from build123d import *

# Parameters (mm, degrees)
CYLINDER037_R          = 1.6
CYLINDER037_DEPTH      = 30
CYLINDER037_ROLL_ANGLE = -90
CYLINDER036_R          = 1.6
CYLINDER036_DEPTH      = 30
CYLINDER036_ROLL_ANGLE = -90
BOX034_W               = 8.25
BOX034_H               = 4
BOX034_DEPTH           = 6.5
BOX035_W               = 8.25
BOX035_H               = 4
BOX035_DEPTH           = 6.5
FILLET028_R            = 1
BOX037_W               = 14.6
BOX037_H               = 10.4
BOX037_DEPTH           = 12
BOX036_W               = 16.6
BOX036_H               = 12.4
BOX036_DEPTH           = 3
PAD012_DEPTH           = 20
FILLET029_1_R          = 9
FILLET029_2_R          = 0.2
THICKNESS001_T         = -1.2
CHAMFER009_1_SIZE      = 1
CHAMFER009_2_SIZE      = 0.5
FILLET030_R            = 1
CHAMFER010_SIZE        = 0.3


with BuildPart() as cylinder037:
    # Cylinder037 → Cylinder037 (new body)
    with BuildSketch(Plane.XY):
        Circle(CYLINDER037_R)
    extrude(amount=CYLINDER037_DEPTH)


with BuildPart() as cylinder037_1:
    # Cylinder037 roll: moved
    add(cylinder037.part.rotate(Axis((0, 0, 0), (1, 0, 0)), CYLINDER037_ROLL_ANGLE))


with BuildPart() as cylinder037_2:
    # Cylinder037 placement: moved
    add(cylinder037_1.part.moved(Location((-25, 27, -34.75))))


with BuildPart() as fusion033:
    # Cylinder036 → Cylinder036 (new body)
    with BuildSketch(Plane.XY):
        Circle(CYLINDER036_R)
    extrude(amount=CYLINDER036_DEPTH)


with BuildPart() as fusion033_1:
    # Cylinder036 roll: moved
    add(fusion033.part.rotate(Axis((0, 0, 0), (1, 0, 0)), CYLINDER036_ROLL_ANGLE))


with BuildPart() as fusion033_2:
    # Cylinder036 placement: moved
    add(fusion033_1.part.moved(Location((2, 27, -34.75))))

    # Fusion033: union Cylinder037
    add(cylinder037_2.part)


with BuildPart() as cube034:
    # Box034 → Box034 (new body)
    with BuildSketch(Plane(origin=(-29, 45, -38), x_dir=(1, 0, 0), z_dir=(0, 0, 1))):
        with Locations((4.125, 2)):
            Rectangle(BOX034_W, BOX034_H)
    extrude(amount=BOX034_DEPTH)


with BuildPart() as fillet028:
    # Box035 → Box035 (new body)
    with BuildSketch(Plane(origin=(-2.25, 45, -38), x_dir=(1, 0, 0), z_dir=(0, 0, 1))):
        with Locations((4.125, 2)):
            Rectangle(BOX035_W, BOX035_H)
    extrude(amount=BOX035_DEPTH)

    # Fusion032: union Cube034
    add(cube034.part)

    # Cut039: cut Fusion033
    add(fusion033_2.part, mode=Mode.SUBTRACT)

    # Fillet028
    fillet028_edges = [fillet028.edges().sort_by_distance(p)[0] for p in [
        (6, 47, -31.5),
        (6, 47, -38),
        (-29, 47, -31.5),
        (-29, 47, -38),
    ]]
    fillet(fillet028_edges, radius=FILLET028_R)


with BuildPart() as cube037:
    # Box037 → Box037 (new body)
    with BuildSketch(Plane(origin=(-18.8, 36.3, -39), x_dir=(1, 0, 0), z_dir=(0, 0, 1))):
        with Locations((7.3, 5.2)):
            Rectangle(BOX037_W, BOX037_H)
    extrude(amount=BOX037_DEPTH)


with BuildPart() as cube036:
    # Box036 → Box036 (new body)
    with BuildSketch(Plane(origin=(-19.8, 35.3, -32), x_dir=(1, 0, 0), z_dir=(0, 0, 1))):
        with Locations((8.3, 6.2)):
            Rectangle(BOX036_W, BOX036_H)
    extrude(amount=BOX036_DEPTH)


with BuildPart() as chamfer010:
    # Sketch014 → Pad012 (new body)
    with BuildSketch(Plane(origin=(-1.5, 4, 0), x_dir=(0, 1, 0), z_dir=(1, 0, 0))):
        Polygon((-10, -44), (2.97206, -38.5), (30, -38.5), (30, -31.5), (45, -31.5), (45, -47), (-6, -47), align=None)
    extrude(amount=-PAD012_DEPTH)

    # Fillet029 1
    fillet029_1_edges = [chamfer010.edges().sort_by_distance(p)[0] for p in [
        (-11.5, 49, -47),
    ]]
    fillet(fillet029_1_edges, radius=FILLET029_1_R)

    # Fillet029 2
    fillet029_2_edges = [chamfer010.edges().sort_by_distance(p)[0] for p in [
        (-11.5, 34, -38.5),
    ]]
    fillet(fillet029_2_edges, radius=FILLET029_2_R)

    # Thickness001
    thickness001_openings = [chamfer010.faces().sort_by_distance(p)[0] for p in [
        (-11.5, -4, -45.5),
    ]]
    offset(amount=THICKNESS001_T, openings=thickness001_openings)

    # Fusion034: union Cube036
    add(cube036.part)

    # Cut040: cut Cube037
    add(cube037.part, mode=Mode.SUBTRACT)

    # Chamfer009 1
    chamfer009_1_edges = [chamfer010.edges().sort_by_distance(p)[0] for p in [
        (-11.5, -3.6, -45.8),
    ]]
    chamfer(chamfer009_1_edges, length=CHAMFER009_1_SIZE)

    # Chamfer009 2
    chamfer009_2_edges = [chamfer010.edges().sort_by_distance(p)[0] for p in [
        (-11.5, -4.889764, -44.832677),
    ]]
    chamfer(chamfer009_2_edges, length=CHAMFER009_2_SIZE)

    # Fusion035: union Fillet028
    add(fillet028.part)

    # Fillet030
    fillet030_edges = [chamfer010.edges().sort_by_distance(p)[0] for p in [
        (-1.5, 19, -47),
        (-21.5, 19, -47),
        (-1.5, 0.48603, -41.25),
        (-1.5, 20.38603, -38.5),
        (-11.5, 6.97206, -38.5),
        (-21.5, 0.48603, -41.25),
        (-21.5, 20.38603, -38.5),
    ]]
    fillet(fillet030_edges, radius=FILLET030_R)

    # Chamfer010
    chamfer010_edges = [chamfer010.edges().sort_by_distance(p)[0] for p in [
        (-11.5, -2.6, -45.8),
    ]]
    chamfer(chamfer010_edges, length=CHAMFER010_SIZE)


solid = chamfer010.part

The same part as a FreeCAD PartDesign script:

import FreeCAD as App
import Part
import Sketcher


def edges_at(feature, points):
    """Names of the edges that pass closest to the given points."""
    edges = feature.Shape.Edges
    near = lambda p: min(range(len(edges)), key=lambda i: edges[i].distToShape(Part.Vertex(*p))[0])
    return sorted({f"Edge{near(p) + 1}" for p in points})


def faces_at(feature, points):
    """Names of the faces that lie closest to the given points."""
    faces = feature.Shape.Faces
    near = lambda p: min(range(len(faces)), key=lambda i: faces[i].distToShape(Part.Vertex(*p))[0])
    return sorted({f"Face{near(p) + 1}" for p in points})

doc = App.newDocument("Part")
body = doc.addObject("PartDesign::Body", "Body")

# Sketch on XY plane
sketch1 = body.newObject("Sketcher::SketchObject", "Sketch")
sketch1.AttachmentSupport = (doc.getObject("XY_Plane"), [""])
sketch1.MapMode = "FlatFace"
sketch1.addGeometry(Part.Circle(App.Vector(0, 0, 0), App.Vector(0, 0, 1), 1.6), False)
sketch1.addConstraint(Sketcher.Constraint("Coincident", 0, 3, -1, 1))
sketch1.addConstraint(Sketcher.Constraint("Diameter", 0, 3.2))
pad1 = body.newObject("PartDesign::Pad", "Pad")
pad1.Profile = sketch1
pad1.Length = 30
body2 = doc.addObject("PartDesign::Body", "Body001")
doc.recompute()

body.Placement = App.Placement(App.Vector(0, 0, 0), App.Rotation(App.Vector(1, 0, 0), 270))
boolean = body2.newObject("PartDesign::Boolean", "Boolean")
boolean.Type = "Fuse"
boolean.addObjects([body])
body3 = doc.addObject("PartDesign::Body", "Body002")
doc.recompute()

body2.Placement = App.Placement(App.Vector(-25, 27, -34.75), App.Rotation(App.Vector(0, 0, 1), 0))
boolean2 = body3.newObject("PartDesign::Boolean", "Boolean001")
boolean2.Type = "Fuse"
boolean2.addObjects([body2])
body4 = doc.addObject("PartDesign::Body", "Body003")

# Sketch on XY plane
sketch2 = body4.newObject("Sketcher::SketchObject", "Sketch001")
sketch2.AttachmentSupport = (doc.getObject("XY_Plane003"), [""])
sketch2.MapMode = "FlatFace"
sketch2.addGeometry(Part.Circle(App.Vector(0, 0, 0), App.Vector(0, 0, 1), 1.6), False)
sketch2.addConstraint(Sketcher.Constraint("Coincident", 0, 3, -1, 1))
sketch2.addConstraint(Sketcher.Constraint("Diameter", 0, 3.2))
pad2 = body4.newObject("PartDesign::Pad", "Pad001")
pad2.Profile = sketch2
pad2.Length = 30
body5 = doc.addObject("PartDesign::Body", "Body004")
doc.recompute()

body4.Placement = App.Placement(App.Vector(0, 0, 0), App.Rotation(App.Vector(1, 0, 0), 270))
boolean3 = body5.newObject("PartDesign::Boolean", "Boolean002")
boolean3.Type = "Fuse"
boolean3.addObjects([body4])
body6 = doc.addObject("PartDesign::Body", "Body005")
body6.AllowCompound = True
doc.recompute()

body5.Placement = App.Placement(App.Vector(2, 27, -34.75), App.Rotation(App.Vector(0, 0, 1), 0))
boolean4 = body6.newObject("PartDesign::Boolean", "Boolean003")
boolean4.Type = "Fuse"
boolean4.addObjects([body5])
doc.recompute()

boolean5 = body6.newObject("PartDesign::Boolean", "Boolean004")
boolean5.Type = "Fuse"
boolean5.addObjects([body3])
body7 = doc.addObject("PartDesign::Body", "Body006")

# Sketch on XY plane
sketch3 = body7.newObject("Sketcher::SketchObject", "Sketch002")
sketch3.AttachmentSupport = (doc.getObject("XY_Plane006"), [""])
sketch3.MapMode = "FlatFace"
sketch3.AttachmentOffset = App.Placement(App.Vector(0, 0, -38), App.Rotation())
sketch3.addGeometry(Part.LineSegment(App.Vector(-29, 49, 0), App.Vector(-29, 45, 0)), False)
sketch3.addGeometry(Part.LineSegment(App.Vector(-29, 45, 0), App.Vector(-20.8, 45, 0)), False)
sketch3.addGeometry(Part.LineSegment(App.Vector(-20.8, 45, 0), App.Vector(-20.8, 49, 0)), False)
sketch3.addGeometry(Part.LineSegment(App.Vector(-20.8, 49, 0), App.Vector(-29, 49, 0)), False)
sketch3.addConstraint(Sketcher.Constraint("Coincident", 0, 2, 1, 1))
sketch3.addConstraint(Sketcher.Constraint("Coincident", 1, 2, 2, 1))
sketch3.addConstraint(Sketcher.Constraint("Coincident", 2, 2, 3, 1))
sketch3.addConstraint(Sketcher.Constraint("Coincident", 3, 2, 0, 1))
sketch3.addConstraint(Sketcher.Constraint("Vertical", 0))
sketch3.addConstraint(Sketcher.Constraint("Horizontal", 1))
sketch3.addConstraint(Sketcher.Constraint("Vertical", 2))
sketch3.addConstraint(Sketcher.Constraint("Horizontal", 3))
sketch3.addConstraint(Sketcher.Constraint("DistanceY", 0, 2, 0, 1, 4.0))
sketch3.addConstraint(Sketcher.Constraint("DistanceX", 0, 2, -1, 1, 29.0))
sketch3.addConstraint(Sketcher.Constraint("DistanceY", -1, 1, 0, 2, 45.0))
sketch3.addConstraint(Sketcher.Constraint("DistanceX", 1, 1, 1, 2, 8.25))
pad3 = body7.newObject("PartDesign::Pad", "Pad002")
pad3.Profile = sketch3
pad3.Length = 6.5
body8 = doc.addObject("PartDesign::Body", "Body007")
body8.AllowCompound = True

# Sketch on XY plane
sketch4 = body8.newObject("Sketcher::SketchObject", "Sketch003")
sketch4.AttachmentSupport = (doc.getObject("XY_Plane007"), [""])
sketch4.MapMode = "FlatFace"
sketch4.AttachmentOffset = App.Placement(App.Vector(0, 0, -38), App.Rotation())
sketch4.addGeometry(Part.LineSegment(App.Vector(-2.2, 49, 0), App.Vector(-2.2, 45, 0)), False)
sketch4.addGeometry(Part.LineSegment(App.Vector(-2.2, 45, 0), App.Vector(6, 45, 0)), False)
sketch4.addGeometry(Part.LineSegment(App.Vector(6, 45, 0), App.Vector(6, 49, 0)), False)
sketch4.addGeometry(Part.LineSegment(App.Vector(6, 49, 0), App.Vector(-2.2, 49, 0)), False)
sketch4.addConstraint(Sketcher.Constraint("Coincident", 0, 2, 1, 1))
sketch4.addConstraint(Sketcher.Constraint("Coincident", 1, 2, 2, 1))
sketch4.addConstraint(Sketcher.Constraint("Coincident", 2, 2, 3, 1))
sketch4.addConstraint(Sketcher.Constraint("Coincident", 3, 2, 0, 1))
sketch4.addConstraint(Sketcher.Constraint("Vertical", 0))
sketch4.addConstraint(Sketcher.Constraint("Horizontal", 1))
sketch4.addConstraint(Sketcher.Constraint("Vertical", 2))
sketch4.addConstraint(Sketcher.Constraint("Horizontal", 3))
sketch4.addConstraint(Sketcher.Constraint("DistanceY", 0, 2, 0, 1, 4.0))
sketch4.addConstraint(Sketcher.Constraint("DistanceY", -1, 1, 0, 2, 45.0))
sketch4.addConstraint(Sketcher.Constraint("DistanceX", -1, 1, 1, 2, 6.0))
sketch4.addConstraint(Sketcher.Constraint("DistanceX", 1, 1, 1, 2, 8.25))
pad4 = body8.newObject("PartDesign::Pad", "Pad003")
pad4.Profile = sketch4
pad4.Length = 6.5
doc.recompute()

boolean6 = body8.newObject("PartDesign::Boolean", "Boolean005")
boolean6.Type = "Fuse"
boolean6.addObjects([body7])
doc.recompute()

boolean7 = body8.newObject("PartDesign::Boolean", "Boolean006")
boolean7.Type = "Cut"
boolean7.addObjects([body6])
doc.recompute()

fillet = body8.newObject("PartDesign::Fillet", "Fillet")
fillet.Base = (boolean7, edges_at(boolean7, [
    (6, 47, -31.5),
    (6, 47, -38),
    (-29, 47, -31.5),
    (-29, 47, -38),
]))
fillet.Radius = 1
body9 = doc.addObject("PartDesign::Body", "Body008")

# Sketch on XY plane
sketch5 = body9.newObject("Sketcher::SketchObject", "Sketch004")
sketch5.AttachmentSupport = (doc.getObject("XY_Plane008"), [""])
sketch5.MapMode = "FlatFace"
sketch5.AttachmentOffset = App.Placement(App.Vector(0, 0, -39), App.Rotation())
sketch5.addGeometry(Part.LineSegment(App.Vector(-19, 47, 0), App.Vector(-19, 36, 0)), False)
sketch5.addGeometry(Part.LineSegment(App.Vector(-19, 36, 0), App.Vector(-4, 36, 0)), False)
sketch5.addGeometry(Part.LineSegment(App.Vector(-4, 36, 0), App.Vector(-4, 47, 0)), False)
sketch5.addGeometry(Part.LineSegment(App.Vector(-4, 47, 0), App.Vector(-19, 47, 0)), False)
sketch5.addConstraint(Sketcher.Constraint("Coincident", 0, 2, 1, 1))
sketch5.addConstraint(Sketcher.Constraint("Coincident", 1, 2, 2, 1))
sketch5.addConstraint(Sketcher.Constraint("Coincident", 2, 2, 3, 1))
sketch5.addConstraint(Sketcher.Constraint("Coincident", 3, 2, 0, 1))
sketch5.addConstraint(Sketcher.Constraint("Vertical", 0))
sketch5.addConstraint(Sketcher.Constraint("Horizontal", 1))
sketch5.addConstraint(Sketcher.Constraint("Vertical", 2))
sketch5.addConstraint(Sketcher.Constraint("Horizontal", 3))
sketch5.addConstraint(Sketcher.Constraint("DistanceX", 1, 1, 1, 2, 14.6))
sketch5.addConstraint(Sketcher.Constraint("DistanceY", 0, 2, 0, 1, 10.4))
sketch5.addConstraint(Sketcher.Constraint("DistanceX", 0, 2, -1, 1, 18.8))
sketch5.addConstraint(Sketcher.Constraint("DistanceY", -1, 1, 0, 2, 36.3))
pad5 = body9.newObject("PartDesign::Pad", "Pad004")
pad5.Profile = sketch5
pad5.Length = 12
body10 = doc.addObject("PartDesign::Body", "Body009")

# Sketch on XY plane
sketch6 = body10.newObject("Sketcher::SketchObject", "Sketch005")
sketch6.AttachmentSupport = (doc.getObject("XY_Plane009"), [""])
sketch6.MapMode = "FlatFace"
sketch6.AttachmentOffset = App.Placement(App.Vector(0, 0, -32), App.Rotation())
sketch6.addGeometry(Part.LineSegment(App.Vector(-20, 48, 0), App.Vector(-20, 35, 0)), False)
sketch6.addGeometry(Part.LineSegment(App.Vector(-20, 35, 0), App.Vector(-3, 35, 0)), False)
sketch6.addGeometry(Part.LineSegment(App.Vector(-3, 35, 0), App.Vector(-3, 48, 0)), False)
sketch6.addGeometry(Part.LineSegment(App.Vector(-3, 48, 0), App.Vector(-20, 48, 0)), False)
sketch6.addConstraint(Sketcher.Constraint("Coincident", 0, 2, 1, 1))
sketch6.addConstraint(Sketcher.Constraint("Coincident", 1, 2, 2, 1))
sketch6.addConstraint(Sketcher.Constraint("Coincident", 2, 2, 3, 1))
sketch6.addConstraint(Sketcher.Constraint("Coincident", 3, 2, 0, 1))
sketch6.addConstraint(Sketcher.Constraint("Vertical", 0))
sketch6.addConstraint(Sketcher.Constraint("Horizontal", 1))
sketch6.addConstraint(Sketcher.Constraint("Vertical", 2))
sketch6.addConstraint(Sketcher.Constraint("Horizontal", 3))
sketch6.addConstraint(Sketcher.Constraint("DistanceX", 1, 1, 1, 2, 16.6))
sketch6.addConstraint(Sketcher.Constraint("DistanceY", 0, 2, 0, 1, 12.4))
sketch6.addConstraint(Sketcher.Constraint("DistanceX", 0, 2, -1, 1, 19.8))
sketch6.addConstraint(Sketcher.Constraint("DistanceY", -1, 1, 0, 2, 35.3))
pad6 = body10.newObject("PartDesign::Pad", "Pad005")
pad6.Profile = sketch6
pad6.Length = 3
body11 = doc.addObject("PartDesign::Body", "Body010")

# Sketch on YZ plane
sketch7 = body11.newObject("Sketcher::SketchObject", "Sketch006")
sketch7.AttachmentSupport = (doc.getObject("YZ_Plane010"), [""])
sketch7.MapMode = "FlatFace"
sketch7.AttachmentOffset = App.Placement(App.Vector(0, 0, -1.5), App.Rotation())
sketch7.addGeometry(Part.LineSegment(App.Vector(7, -38, 0), App.Vector(-6, -44, 0)), False)
sketch7.addGeometry(Part.LineSegment(App.Vector(-6, -44, 0), App.Vector(-2, -47, 0)), False)
sketch7.addGeometry(Part.LineSegment(App.Vector(-2, -47, 0), App.Vector(49, -47, 0)), False)
sketch7.addGeometry(Part.LineSegment(App.Vector(49, -47, 0), App.Vector(49, -32, 0)), False)
sketch7.addGeometry(Part.LineSegment(App.Vector(49, -32, 0), App.Vector(34, -32, 0)), False)
sketch7.addGeometry(Part.LineSegment(App.Vector(34, -32, 0), App.Vector(34, -38, 0)), False)
sketch7.addGeometry(Part.LineSegment(App.Vector(34, -38, 0), App.Vector(7, -38, 0)), False)
sketch7.addConstraint(Sketcher.Constraint("Coincident", 0, 2, 1, 1))
sketch7.addConstraint(Sketcher.Constraint("Coincident", 1, 2, 2, 1))
sketch7.addConstraint(Sketcher.Constraint("Coincident", 2, 2, 3, 1))
sketch7.addConstraint(Sketcher.Constraint("Coincident", 3, 2, 4, 1))
sketch7.addConstraint(Sketcher.Constraint("Coincident", 4, 2, 5, 1))
sketch7.addConstraint(Sketcher.Constraint("Coincident", 5, 2, 6, 1))
sketch7.addConstraint(Sketcher.Constraint("Coincident", 6, 2, 0, 1))
sketch7.addConstraint(Sketcher.Constraint("Horizontal", 2))
sketch7.addConstraint(Sketcher.Constraint("Vertical", 3))
sketch7.addConstraint(Sketcher.Constraint("Horizontal", 4))
sketch7.addConstraint(Sketcher.Constraint("Vertical", 5))
sketch7.addConstraint(Sketcher.Constraint("Horizontal", 6))
sketch7.addConstraint(Sketcher.Constraint("DistanceX", 2, 1, 2, 2, 51.0))
sketch7.addConstraint(Sketcher.Constraint("DistanceX", 4, 2, 4, 1, 15.0))
sketch7.addConstraint(Sketcher.Constraint("DistanceY", 5, 2, 5, 1, 7.0))
sketch7.addConstraint(Sketcher.Constraint("Distance", 1, 5.0))
sketch7.addConstraint(Sketcher.Constraint("DistanceY", 3, 1, 3, 2, 15.5))
sketch7.addConstraint(Sketcher.Constraint("DistanceX", 0, 2, -1, 1, 6.0))
sketch7.addConstraint(Sketcher.Constraint("DistanceY", 0, 2, -1, 1, 44.0))
sketch7.addConstraint(Sketcher.Constraint("DistanceX", 1, 2, -1, 1, 2.0))
sketch7.addConstraint(Sketcher.Constraint("DistanceX", 6, 2, 6, 1, 27.02794))
pad7 = body11.newObject("PartDesign::Pad", "Pad006")
pad7.Profile = sketch7
pad7.Length = 20
pad7.Reversed = True
doc.recompute()

fillet2 = body11.newObject("PartDesign::Fillet", "Fillet001")
fillet2.Base = (pad7, edges_at(pad7, [(-11.5, 49, -47)]))
fillet2.Radius = 9
doc.recompute()

fillet3 = body11.newObject("PartDesign::Fillet", "Fillet002")
fillet3.Base = (fillet2, edges_at(fillet2, [(-11.5, 34, -38.5)]))
fillet3.Radius = 0.2
doc.recompute()

thickness = body11.newObject("PartDesign::Thickness", "Thickness")
thickness.Base = (fillet3, faces_at(fillet3, [(-11.5, -4, -45.5)]))
thickness.Value = 1.2
thickness.Reversed = True
thickness.Join = "Arc"
doc.recompute()

boolean8 = body11.newObject("PartDesign::Boolean", "Boolean007")
boolean8.Type = "Fuse"
boolean8.addObjects([body10])
doc.recompute()

boolean9 = body11.newObject("PartDesign::Boolean", "Boolean008")
boolean9.Type = "Cut"
boolean9.addObjects([body9])
doc.recompute()

chamfer = body11.newObject("PartDesign::Chamfer", "Chamfer")
chamfer.Base = (boolean9, edges_at(boolean9, [(-11.5, -3.6, -45.8)]))
chamfer.Size = 1
doc.recompute()

chamfer2 = body11.newObject("PartDesign::Chamfer", "Chamfer001")
chamfer2.Base = (chamfer, edges_at(chamfer, [(-11.5, -4.89, -44.833)]))
chamfer2.Size = 0.5
doc.recompute()

boolean10 = body11.newObject("PartDesign::Boolean", "Boolean009")
boolean10.Type = "Fuse"
boolean10.addObjects([body8])
doc.recompute()

fillet4 = body11.newObject("PartDesign::Fillet", "Fillet003")
fillet4.Base = (boolean10, edges_at(boolean10, [
    (-1.5, 19, -47),
    (-21.5, 19, -47),
    (-1.5, 0.486, -41.25),
    (-1.5, 20.386, -38.5),
    (-11.5, 6.972, -38.5),
    (-21.5, 0.486, -41.25),
    (-21.5, 20.386, -38.5),
]))
fillet4.Radius = 1
doc.recompute()

chamfer3 = body11.newObject("PartDesign::Chamfer", "Chamfer002")
chamfer3.Base = (fillet4, edges_at(fillet4, [(-11.5, -2.6, -45.8)]))
chamfer3.Size = 0.3

doc.recompute()
